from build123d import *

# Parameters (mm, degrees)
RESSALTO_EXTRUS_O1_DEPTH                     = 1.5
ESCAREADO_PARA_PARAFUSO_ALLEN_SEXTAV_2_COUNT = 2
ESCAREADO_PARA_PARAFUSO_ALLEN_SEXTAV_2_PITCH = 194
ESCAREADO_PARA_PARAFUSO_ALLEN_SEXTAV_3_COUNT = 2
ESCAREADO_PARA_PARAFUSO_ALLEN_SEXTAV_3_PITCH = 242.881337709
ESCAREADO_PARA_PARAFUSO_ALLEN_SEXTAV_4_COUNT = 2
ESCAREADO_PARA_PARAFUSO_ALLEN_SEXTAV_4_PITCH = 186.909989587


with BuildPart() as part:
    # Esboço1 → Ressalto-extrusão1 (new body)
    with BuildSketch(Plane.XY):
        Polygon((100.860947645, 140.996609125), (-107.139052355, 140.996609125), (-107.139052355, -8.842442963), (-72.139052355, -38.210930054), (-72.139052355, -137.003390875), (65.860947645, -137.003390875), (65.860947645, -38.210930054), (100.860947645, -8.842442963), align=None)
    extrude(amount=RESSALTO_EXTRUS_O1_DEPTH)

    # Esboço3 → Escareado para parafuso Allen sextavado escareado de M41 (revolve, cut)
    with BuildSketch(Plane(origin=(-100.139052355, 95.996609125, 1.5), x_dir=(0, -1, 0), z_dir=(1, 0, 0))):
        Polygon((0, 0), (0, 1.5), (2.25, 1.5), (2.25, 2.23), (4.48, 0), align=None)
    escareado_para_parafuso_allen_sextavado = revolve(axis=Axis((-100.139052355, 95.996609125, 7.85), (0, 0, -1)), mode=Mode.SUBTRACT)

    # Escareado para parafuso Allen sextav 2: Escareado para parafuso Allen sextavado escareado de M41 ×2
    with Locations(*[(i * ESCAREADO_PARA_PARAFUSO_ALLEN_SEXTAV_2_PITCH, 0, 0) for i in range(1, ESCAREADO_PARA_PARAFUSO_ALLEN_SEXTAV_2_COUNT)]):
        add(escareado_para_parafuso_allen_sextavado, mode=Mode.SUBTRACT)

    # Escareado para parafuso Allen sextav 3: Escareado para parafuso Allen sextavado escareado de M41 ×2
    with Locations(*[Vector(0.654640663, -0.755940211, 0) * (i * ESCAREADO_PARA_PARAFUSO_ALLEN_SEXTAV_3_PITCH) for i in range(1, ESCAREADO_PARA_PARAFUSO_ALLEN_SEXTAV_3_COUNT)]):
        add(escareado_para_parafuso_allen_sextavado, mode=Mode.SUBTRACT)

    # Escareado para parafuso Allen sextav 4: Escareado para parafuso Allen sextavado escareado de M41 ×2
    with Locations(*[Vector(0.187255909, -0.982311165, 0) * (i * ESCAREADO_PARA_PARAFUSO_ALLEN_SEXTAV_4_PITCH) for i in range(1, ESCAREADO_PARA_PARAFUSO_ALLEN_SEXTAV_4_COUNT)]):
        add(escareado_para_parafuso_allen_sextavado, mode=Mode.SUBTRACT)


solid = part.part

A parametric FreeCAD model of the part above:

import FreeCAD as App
import Part
import Sketcher
from FreeCAD import Vector
Q = App.Units.Quantity


def add_polygon(sketch, points):
    """Adds a closed chain of lines whose ends are joined by coincident constraints."""
    first, n = sketch.GeometryCount, len(points)
    for a, b in zip(points, points[1:] + points[:1]):
        sketch.addGeometry(Part.LineSegment(App.Vector(*a, 0), App.Vector(*b, 0)), False)
    for i in range(n):
        sketch.addConstraint(Sketcher.Constraint("Coincident", first + i, 2, first + (i + 1) % n, 1))

doc = App.newDocument("Part")
params = doc.addObject("Spreadsheet::Sheet", "Params")
for row, (alias, value) in enumerate([
    ("sketch1_width", "208 mm"),
    ("sketch1_width2", "138 mm"),
    ("pad1_length", "1.5 mm"),
    ("sketch2_height", "1.5 mm"),
    ("sketch2_width", "4.48 mm"),
    ("sketch2_width2", "2.25 mm"),
    ("groove_angle", "360 deg"),
    ("linearpattern_pitch", "194 mm"),
    ("linearpattern2_pitch", "242.881338 mm"),
    ("linearpattern3_pitch", "186.90999 mm"),
], start=1):
    params.set(f"A{row}", alias)
    params.set(f"B{row}", "=" + value)
    params.setAlias(f"B{row}", alias)

body = doc.addObject("PartDesign::Body", "Body")

# Sketch on XY plane
sketch1 = body.newObject("Sketcher::SketchObject", "Sketch")
sketch1.AttachmentSupport = (doc.getObject("XY_Plane"), [""])
sketch1.MapMode = "FlatFace"
add_polygon(sketch1, [(100.860948, 140.996609), (-107.139052, 140.996609), (-107.139052, -8.842443), (-72.139052, -38.21093), (-72.139052, -137.003391), (65.860948, -137.003391), (65.860948, -38.21093), (100.860948, -8.842443)])  # lines 0-7
sketch1.addConstraint([
    Sketcher.Constraint("Horizontal", 0),
    Sketcher.Constraint("Vertical", 1),
    Sketcher.Constraint("Vertical", 3),
    Sketcher.Constraint("Horizontal", 4),
    Sketcher.Constraint("Vertical", 5),
    Sketcher.Constraint("Vertical", 7),
    Sketcher.Constraint("Horizontal", 2, 2, 5, 2),
    Sketcher.Constraint("Horizontal", 1, 2, 6, 2),
    Sketcher.Constraint("Equal", 2, 6),
    Sketcher.Constraint("DistanceX", 0, 2, 0, 1, Q("208 mm")),
    Sketcher.Constraint("DistanceX", 4, 1, 4, 2, Q("138 mm")),
    Sketcher.Constraint("Angle", 2, Q("-40 deg")),
    Sketcher.Constraint("DistanceY", 3, 2, 0, 2, Q("278 mm")),
    Sketcher.Constraint("DistanceY", 3, 2, 3, 1, Q("98.792461 mm")),
    Sketcher.Constraint("DistanceY", -1, 1, 0, 2, Q("140.996609 mm")),
    Sketcher.Constraint("DistanceX", 0, 2, -1, 1, Q("107.139052 mm")),
])
sketch1.setExpression("Constraints[17]", "Params.sketch1_width")
sketch1.setExpression("Constraints[18]", "Params.sketch1_width2")
pad1 = body.newObject("PartDesign::Pad", "Pad")
pad1.Profile = sketch1
pad1.setExpression("Length", "Params.pad1_length")

# Sketch on YZ plane
sketch2 = body.newObject("Sketcher::SketchObject", "Sketch001")
sketch2.AttachmentSupport = (doc.getObject("YZ_Plane"), [""])
sketch2.MapMode = "FlatFace"
sketch2.AttachmentOffset = App.Placement(Vector(0, 0, -100.139052), App.Rotation())
add_polygon(sketch2, [(95.996609, 0), (95.996609, 1.5), (91.516609, 1.5), (93.746609, -0.73), (93.746609, 0)])  # lines 0-4
sketch2.addGeometry(Part.LineSegment(Vector(95.996609, 1.5, 0), Vector(95.996609, -0.73, 0)), True)  # axis
sketch2.addConstraint([
    Sketcher.Constraint("Vertical", 0),
    Sketcher.Constraint("Horizontal", 1),
    Sketcher.Constraint("Vertical", 3),
    Sketcher.Constraint("Horizontal", 4),
    Sketcher.Constraint("Vertical", 5),
    Sketcher.Constraint("Coincident", 5, 1, 0, 2),
    Sketcher.Constraint("PointOnObject", 3, 2, -1),
    Sketcher.Constraint("Horizontal", 2, 2, 5, 2),
    Sketcher.Constraint("Angle", 2, Q("-45 deg")),
    Sketcher.Constraint("DistanceY", 0, 1, 0, 2, Q("1.5 mm")),
    Sketcher.Constraint("DistanceX", 1, 2, 1, 1, Q("4.48 mm")),
    Sketcher.Constraint("DistanceX", 4, 1, 4, 2, Q("2.25 mm")),
    Sketcher.Constraint("DistanceX", -1, 1, 0, 2, Q("95.996609 mm")),
])
sketch2.setExpression("Constraints[14]", "Params.sketch2_height")
sketch2.setExpression("Constraints[15]", "Params.sketch2_width")
sketch2.setExpression("Constraints[16]", "Params.sketch2_width2")
groove = body.newObject("PartDesign::Groove", "Groove")
groove.Profile = sketch2
groove.ReferenceAxis = (sketch2, ["Axis0"])
groove.setExpression("Angle", "Params.groove_angle")
doc.recompute()

linearpattern = body.newObject("PartDesign::LinearPattern", "LinearPattern")
linearpattern.Originals = [groove]
linearpattern.Direction = (doc.getObject("X_Axis"), [""])
linearpattern.Mode = "offset"
linearpattern.setExpression("Offset", "Params.linearpattern_pitch")
linearpattern.Occurrences = 2
body.Tip = linearpattern
doc.recompute()

datumline = body.newObject("PartDesign::Line", "DatumLine")
datumline.Placement = App.Placement(Vector(0, 0, 0), App.Rotation(Vector(0, 0, 1), Vector(0.654640663, -0.755940211, 0)))
linearpattern2 = body.newObject("PartDesign::LinearPattern", "LinearPattern001")
linearpattern2.Originals = [groove]
linearpattern2.Direction = (datumline, [""])
linearpattern2.Mode = "offset"
linearpattern2.setExpression("Offset", "Params.linearpattern2_pitch")
linearpattern2.Occurrences = 2
body.Tip = linearpattern2
doc.recompute()

datumline2 = body.newObject("PartDesign::Line", "DatumLine001")
datumline2.Placement = App.Placement(Vector(0, 0, 0), App.Rotation(Vector(0, 0, 1), Vector(0.187255909, -0.982311165, 0)))
linearpattern3 = body.newObject("PartDesign::LinearPattern", "LinearPattern002")
linearpattern3.Originals = [groove]
linearpattern3.Direction = (datumline2, [""])
linearpattern3.Mode = "offset"
linearpattern3.setExpression("Offset", "Params.linearpattern3_pitch")
linearpattern3.Occurrences = 2
body.Tip = linearpattern3

doc.recompute()
